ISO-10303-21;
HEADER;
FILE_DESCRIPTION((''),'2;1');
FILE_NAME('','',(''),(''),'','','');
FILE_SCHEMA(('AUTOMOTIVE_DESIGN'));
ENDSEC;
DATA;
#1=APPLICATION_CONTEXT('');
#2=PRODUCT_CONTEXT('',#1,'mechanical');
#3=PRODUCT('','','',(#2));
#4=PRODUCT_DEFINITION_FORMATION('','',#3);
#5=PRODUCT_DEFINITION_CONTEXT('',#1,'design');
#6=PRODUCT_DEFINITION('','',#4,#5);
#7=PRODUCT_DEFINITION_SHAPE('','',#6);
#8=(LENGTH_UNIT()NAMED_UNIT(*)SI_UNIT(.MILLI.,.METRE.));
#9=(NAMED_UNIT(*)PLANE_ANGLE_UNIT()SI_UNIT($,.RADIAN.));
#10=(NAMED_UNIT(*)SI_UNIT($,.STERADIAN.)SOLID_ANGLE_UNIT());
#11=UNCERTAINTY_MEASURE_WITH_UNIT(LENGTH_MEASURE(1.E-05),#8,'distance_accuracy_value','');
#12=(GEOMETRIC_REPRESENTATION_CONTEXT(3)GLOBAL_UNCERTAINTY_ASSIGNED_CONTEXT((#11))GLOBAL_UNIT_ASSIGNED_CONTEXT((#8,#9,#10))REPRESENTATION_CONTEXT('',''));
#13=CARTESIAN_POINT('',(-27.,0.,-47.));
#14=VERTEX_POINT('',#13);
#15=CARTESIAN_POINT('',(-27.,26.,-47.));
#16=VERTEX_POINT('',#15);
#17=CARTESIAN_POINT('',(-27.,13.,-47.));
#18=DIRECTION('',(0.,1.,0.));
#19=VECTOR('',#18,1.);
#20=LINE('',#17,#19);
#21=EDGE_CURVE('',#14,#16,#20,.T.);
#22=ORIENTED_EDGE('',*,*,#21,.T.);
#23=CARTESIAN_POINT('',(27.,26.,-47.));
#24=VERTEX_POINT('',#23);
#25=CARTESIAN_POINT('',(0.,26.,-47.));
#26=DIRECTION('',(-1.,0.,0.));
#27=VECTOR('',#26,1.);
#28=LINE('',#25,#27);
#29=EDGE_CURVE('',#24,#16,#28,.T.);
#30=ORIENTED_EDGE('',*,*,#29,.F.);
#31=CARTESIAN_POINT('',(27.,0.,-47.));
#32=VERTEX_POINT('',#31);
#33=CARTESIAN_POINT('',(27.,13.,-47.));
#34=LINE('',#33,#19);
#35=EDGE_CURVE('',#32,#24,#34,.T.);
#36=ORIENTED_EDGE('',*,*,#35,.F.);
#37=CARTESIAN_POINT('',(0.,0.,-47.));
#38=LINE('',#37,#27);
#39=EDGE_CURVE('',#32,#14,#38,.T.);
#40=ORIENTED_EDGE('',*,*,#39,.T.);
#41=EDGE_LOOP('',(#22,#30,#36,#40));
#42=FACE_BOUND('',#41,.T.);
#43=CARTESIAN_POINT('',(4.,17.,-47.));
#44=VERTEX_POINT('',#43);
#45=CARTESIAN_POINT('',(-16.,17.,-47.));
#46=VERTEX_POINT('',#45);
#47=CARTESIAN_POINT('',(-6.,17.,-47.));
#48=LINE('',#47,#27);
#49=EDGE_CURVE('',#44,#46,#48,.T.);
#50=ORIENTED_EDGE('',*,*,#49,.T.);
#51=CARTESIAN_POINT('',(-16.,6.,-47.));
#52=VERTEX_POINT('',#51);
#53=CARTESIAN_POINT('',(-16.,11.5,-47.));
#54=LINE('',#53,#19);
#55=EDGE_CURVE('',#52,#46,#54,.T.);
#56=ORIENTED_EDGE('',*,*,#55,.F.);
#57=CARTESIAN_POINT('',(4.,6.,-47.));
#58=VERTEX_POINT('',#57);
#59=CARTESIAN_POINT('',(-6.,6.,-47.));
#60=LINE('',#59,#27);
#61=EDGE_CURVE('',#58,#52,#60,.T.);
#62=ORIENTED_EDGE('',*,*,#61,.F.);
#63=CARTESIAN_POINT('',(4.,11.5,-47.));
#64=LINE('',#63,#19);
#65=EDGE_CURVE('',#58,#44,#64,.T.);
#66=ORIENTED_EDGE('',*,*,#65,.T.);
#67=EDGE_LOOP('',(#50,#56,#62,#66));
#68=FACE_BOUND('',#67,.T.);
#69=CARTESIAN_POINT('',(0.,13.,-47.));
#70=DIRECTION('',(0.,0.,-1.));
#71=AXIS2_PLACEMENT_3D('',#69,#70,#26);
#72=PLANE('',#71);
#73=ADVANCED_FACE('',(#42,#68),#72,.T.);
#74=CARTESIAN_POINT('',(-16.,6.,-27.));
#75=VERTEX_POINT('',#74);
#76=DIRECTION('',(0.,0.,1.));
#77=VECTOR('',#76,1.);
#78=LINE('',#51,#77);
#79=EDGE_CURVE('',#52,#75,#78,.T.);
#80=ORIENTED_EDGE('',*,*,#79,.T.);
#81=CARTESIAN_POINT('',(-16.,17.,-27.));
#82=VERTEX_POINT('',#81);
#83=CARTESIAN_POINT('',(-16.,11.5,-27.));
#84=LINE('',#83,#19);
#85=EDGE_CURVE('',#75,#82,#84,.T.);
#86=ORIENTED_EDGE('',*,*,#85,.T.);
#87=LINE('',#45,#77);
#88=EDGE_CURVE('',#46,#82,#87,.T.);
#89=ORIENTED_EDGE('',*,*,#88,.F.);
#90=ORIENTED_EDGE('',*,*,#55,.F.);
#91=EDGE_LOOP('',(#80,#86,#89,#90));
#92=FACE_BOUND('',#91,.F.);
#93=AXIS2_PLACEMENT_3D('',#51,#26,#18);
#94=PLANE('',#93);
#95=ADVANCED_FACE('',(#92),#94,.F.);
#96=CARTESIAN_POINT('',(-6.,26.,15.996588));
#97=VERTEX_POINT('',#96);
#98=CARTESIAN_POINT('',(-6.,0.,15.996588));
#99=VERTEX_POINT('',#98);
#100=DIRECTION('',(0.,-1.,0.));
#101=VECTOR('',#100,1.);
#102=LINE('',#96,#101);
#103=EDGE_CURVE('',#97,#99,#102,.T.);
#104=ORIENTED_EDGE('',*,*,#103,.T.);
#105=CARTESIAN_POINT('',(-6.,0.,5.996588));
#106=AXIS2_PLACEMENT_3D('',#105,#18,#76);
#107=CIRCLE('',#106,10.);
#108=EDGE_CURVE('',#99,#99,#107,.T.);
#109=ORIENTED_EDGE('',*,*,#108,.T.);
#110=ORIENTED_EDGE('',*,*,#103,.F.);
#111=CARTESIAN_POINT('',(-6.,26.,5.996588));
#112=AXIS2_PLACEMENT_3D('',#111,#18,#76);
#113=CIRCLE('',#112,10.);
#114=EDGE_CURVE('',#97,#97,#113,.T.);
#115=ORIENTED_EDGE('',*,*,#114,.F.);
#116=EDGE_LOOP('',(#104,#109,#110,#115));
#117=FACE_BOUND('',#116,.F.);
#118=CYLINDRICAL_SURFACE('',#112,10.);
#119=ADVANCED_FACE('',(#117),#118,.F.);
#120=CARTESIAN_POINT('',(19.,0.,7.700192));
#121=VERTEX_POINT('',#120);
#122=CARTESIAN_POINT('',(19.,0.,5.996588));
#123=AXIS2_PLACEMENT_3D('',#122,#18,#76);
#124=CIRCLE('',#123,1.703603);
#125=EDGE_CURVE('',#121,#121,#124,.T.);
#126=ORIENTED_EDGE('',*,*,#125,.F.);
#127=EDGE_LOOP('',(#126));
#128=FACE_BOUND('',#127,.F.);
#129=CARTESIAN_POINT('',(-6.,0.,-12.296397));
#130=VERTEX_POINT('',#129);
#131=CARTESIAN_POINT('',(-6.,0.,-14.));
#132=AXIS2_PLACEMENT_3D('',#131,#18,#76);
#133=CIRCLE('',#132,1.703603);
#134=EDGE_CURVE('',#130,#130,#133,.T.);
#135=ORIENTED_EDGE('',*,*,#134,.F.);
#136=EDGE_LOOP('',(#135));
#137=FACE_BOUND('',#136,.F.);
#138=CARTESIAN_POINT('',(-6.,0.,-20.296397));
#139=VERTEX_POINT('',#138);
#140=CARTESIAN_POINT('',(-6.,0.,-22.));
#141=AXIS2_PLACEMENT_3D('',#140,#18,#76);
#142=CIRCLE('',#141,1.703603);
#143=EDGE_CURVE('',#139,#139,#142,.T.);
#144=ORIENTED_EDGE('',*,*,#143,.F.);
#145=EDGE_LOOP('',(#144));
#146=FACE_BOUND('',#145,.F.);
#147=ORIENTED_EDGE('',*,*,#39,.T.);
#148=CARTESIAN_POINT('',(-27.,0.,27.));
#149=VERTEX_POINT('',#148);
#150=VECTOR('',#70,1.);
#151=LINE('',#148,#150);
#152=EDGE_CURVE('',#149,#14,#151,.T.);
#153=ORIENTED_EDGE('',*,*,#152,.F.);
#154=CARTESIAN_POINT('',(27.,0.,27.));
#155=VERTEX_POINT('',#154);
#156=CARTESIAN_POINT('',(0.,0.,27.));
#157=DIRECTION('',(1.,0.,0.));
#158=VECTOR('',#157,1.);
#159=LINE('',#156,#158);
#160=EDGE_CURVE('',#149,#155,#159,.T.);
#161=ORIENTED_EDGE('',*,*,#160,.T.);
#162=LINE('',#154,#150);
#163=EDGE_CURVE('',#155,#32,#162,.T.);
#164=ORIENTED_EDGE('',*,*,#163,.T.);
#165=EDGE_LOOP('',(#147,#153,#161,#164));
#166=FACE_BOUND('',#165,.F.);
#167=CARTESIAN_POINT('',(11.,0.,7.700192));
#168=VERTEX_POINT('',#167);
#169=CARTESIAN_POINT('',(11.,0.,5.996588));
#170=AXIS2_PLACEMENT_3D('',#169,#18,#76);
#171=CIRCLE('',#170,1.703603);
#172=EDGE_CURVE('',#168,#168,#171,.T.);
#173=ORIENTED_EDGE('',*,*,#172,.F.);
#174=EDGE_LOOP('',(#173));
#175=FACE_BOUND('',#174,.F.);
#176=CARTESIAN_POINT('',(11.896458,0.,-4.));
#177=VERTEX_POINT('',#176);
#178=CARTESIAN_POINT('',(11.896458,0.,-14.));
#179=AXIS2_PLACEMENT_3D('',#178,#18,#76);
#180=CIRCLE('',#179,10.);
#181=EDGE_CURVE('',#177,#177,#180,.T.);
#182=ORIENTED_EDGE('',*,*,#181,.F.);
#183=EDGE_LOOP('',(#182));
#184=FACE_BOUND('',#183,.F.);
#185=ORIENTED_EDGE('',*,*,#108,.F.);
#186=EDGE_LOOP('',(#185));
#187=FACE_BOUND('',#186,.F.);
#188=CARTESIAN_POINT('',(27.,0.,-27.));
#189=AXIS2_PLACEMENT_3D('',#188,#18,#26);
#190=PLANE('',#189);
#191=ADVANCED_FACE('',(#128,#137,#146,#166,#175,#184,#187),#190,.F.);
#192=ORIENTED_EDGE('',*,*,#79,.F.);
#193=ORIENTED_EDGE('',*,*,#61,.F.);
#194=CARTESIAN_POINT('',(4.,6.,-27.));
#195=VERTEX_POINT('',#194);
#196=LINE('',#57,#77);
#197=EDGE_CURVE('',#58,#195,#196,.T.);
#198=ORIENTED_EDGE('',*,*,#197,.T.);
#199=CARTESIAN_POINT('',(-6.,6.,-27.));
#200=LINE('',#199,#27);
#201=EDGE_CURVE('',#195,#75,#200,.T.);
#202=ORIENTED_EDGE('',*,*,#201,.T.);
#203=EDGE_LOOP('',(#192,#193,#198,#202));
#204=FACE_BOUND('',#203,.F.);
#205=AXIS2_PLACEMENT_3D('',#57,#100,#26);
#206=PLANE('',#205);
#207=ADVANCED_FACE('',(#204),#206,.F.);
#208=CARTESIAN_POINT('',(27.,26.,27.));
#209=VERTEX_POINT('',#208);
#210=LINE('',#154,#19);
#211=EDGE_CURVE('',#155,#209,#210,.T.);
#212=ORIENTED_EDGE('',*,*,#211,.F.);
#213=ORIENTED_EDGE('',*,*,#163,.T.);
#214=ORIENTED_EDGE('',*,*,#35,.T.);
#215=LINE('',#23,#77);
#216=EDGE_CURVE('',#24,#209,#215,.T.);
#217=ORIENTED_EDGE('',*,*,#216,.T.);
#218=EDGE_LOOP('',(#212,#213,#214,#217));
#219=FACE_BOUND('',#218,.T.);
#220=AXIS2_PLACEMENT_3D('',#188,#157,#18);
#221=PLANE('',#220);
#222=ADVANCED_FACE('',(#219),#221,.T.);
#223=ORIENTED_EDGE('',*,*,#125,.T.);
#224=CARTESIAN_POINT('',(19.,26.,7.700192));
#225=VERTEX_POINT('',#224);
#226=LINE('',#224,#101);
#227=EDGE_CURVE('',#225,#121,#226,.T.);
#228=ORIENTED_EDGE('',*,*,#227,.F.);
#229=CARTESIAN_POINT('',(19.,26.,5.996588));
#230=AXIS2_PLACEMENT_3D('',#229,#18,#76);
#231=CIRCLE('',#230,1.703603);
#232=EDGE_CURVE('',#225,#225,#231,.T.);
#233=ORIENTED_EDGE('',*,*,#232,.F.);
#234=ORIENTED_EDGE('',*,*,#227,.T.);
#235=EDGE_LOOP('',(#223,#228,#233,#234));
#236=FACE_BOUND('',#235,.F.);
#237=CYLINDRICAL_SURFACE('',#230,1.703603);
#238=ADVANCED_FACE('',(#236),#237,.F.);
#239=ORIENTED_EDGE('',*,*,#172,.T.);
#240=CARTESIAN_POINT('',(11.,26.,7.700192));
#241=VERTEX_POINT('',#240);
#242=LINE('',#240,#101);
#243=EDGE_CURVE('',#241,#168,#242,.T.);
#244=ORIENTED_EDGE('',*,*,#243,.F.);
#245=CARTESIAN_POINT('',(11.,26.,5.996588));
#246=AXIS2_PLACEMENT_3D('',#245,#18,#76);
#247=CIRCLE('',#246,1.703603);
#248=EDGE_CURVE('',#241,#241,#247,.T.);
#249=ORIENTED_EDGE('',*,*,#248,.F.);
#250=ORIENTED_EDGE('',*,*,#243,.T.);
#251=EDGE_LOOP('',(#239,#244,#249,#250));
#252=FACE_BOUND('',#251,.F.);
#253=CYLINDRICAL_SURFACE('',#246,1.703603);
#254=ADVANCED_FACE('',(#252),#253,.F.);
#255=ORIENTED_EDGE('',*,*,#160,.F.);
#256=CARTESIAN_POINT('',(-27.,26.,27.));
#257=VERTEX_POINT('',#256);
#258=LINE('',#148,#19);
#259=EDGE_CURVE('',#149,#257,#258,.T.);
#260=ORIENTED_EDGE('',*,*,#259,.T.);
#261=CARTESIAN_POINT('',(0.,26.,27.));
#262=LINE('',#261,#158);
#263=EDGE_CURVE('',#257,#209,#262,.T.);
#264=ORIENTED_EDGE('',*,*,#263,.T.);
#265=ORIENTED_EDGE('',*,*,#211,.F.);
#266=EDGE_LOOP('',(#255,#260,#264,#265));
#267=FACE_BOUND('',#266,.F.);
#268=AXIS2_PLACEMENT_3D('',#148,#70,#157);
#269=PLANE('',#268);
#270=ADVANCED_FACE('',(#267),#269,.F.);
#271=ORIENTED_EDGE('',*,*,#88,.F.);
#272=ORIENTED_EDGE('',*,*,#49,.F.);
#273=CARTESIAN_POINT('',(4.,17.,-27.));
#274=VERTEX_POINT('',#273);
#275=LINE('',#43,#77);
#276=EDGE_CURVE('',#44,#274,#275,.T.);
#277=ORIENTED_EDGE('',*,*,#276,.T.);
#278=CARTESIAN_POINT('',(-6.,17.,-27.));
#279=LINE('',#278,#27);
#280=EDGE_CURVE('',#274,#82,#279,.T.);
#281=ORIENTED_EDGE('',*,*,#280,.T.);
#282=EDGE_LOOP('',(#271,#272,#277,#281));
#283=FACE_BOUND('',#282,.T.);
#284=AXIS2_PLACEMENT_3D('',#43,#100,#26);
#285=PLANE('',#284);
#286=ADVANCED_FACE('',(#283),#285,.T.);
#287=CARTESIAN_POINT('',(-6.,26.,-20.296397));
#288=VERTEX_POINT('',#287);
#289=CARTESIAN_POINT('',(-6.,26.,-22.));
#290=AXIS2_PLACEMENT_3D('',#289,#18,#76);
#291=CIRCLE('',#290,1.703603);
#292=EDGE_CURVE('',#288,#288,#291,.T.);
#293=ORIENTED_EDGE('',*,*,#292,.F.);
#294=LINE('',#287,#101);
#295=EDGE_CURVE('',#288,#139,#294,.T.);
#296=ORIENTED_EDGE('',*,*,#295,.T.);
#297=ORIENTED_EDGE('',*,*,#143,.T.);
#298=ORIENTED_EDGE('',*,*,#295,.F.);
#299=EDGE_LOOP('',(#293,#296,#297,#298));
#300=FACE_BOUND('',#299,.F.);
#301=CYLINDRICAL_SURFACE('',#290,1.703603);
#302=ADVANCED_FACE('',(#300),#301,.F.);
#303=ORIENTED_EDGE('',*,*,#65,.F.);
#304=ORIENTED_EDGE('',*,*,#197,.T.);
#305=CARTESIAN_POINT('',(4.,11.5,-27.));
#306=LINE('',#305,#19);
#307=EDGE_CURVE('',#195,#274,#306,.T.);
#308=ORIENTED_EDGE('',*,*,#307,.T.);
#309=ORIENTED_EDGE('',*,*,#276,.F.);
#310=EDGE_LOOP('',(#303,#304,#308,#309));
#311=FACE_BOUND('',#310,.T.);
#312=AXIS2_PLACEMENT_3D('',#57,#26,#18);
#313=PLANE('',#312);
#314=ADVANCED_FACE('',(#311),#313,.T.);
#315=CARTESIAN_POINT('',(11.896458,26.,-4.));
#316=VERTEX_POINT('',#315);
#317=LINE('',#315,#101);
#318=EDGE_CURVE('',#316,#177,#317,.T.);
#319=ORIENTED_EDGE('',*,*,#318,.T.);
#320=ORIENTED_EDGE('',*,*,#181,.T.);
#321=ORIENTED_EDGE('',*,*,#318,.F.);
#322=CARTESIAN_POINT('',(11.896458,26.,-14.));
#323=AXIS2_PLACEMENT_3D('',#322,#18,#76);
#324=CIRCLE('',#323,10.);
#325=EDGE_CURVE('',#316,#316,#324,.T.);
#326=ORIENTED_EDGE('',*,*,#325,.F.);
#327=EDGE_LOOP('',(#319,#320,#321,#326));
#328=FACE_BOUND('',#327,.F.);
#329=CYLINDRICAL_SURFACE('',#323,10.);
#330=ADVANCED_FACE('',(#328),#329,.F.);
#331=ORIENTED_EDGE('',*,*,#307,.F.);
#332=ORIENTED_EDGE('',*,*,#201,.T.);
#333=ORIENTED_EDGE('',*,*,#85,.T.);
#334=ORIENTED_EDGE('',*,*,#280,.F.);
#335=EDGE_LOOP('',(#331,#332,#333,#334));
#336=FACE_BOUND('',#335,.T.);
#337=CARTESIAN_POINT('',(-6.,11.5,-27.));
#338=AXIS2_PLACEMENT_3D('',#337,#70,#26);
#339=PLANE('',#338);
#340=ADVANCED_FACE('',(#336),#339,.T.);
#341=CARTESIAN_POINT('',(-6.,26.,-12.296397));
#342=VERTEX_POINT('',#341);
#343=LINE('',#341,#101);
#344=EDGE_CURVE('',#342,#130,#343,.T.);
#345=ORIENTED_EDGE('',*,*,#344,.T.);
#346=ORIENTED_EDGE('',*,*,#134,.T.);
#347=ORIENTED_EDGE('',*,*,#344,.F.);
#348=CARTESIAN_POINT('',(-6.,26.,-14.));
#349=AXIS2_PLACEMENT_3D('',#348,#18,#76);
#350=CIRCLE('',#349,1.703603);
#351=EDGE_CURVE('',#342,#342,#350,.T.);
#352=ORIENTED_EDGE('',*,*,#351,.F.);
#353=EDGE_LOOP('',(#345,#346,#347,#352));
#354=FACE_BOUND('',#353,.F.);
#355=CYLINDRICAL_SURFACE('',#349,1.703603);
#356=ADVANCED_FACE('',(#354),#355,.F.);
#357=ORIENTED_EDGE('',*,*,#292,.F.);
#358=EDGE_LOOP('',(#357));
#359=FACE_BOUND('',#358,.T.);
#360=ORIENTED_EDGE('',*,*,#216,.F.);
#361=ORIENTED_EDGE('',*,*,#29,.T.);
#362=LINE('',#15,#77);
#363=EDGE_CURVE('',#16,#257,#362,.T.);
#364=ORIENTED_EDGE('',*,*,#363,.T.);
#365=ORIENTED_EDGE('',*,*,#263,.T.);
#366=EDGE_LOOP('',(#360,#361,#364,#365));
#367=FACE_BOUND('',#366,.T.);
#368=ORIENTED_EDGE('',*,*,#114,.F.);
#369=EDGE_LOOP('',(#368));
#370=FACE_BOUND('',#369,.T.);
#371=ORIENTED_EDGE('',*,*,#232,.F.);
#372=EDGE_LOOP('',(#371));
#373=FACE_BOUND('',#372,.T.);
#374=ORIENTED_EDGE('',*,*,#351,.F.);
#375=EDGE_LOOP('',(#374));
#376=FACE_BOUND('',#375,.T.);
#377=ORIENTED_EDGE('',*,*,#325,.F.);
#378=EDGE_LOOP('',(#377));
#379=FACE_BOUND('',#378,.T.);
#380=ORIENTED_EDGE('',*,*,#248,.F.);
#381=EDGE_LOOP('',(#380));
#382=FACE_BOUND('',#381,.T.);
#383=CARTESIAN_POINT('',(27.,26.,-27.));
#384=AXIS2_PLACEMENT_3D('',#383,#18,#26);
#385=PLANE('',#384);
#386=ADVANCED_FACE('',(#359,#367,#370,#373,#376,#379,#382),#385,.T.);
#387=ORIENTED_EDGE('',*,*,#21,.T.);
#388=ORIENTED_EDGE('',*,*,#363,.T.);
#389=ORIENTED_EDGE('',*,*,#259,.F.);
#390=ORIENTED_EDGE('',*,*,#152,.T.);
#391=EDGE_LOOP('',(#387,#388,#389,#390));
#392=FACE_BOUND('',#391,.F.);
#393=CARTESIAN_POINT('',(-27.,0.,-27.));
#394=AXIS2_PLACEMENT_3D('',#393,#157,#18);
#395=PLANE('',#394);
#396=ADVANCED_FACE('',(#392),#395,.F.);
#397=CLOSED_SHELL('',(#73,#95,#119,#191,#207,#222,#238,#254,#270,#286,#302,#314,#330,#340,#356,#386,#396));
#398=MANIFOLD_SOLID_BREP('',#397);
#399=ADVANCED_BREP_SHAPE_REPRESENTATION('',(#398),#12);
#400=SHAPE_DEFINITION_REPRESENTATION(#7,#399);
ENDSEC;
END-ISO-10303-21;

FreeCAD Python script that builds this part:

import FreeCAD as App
import Part
import Sketcher
from FreeCAD import Vector

doc = App.newDocument("Part")
body = doc.addObject("PartDesign::Body", "Body")

sketch1 = doc.addObject("Sketcher::SketchObject", "Sketch")
body.addObject(sketch1)
sketch1.AttachmentSupport = (doc.XZ_Plane, [""])
sketch1.MapMode = "FlatFace"
sketch1.addGeometry([
    Part.LineSegment(Vector(-27, -27, 0), Vector(-27, 27, 0)),
    Part.LineSegment(Vector(-27, 27, 0), Vector(27, 27, 0)),
    Part.LineSegment(Vector(27, 27, 0), Vector(27, -27, 0)),
    Part.LineSegment(Vector(27, -27, 0), Vector(-27, -27, 0)),
], False)
sketch1.addConstraint([
    Sketcher.Constraint("Coincident", 0, 2, 1, 1),
    Sketcher.Constraint("Coincident", 1, 2, 2, 1),
    Sketcher.Constraint("Coincident", 2, 2, 3, 1),
    Sketcher.Constraint("Coincident", 3, 2, 0, 1),
    Sketcher.Constraint("Vertical", 0),
    Sketcher.Constraint("Horizontal", 1),
    Sketcher.Constraint("Vertical", 2),
    Sketcher.Constraint("Horizontal", 3),
    Sketcher.Constraint("Symmetric", 0, 2, 2, 2, -1, 1),
    Sketcher.Constraint("Equal", 3, 0),
    Sketcher.Constraint("DistanceX", 1, 1, 1, 2, 54.0),
])
pad1 = doc.addObject("PartDesign::Pad", "Pad")
body.addObject(pad1)
pad1.Profile = sketch1
pad1.Length = 26
pad1.Reversed = True

sketch2 = doc.addObject("Sketcher::SketchObject", "Sketch001")
body.addObject(sketch2)
sketch2.AttachmentSupport = (doc.XZ_Plane, [""])
sketch2.MapMode = "FlatFace"
sketch2.AttachmentOffset = App.Placement(Vector(0, 0, -26), App.Rotation())
sketch2.addGeometry([
    Part.Circle(Vector(-6, -22, 0), Vector(0, 0, 1), 1.703603),
    Part.Circle(Vector(-6, -14, 0), Vector(0, 0, 1), 1.703603),
    Part.Circle(Vector(19, 5.996588, 0), Vector(0, 0, 1), 1.703603),
    Part.Circle(Vector(11, 5.996588, 0), Vector(0, 0, 1), 1.703603),
    Part.Circle(Vector(11.896458, -14, 0), Vector(0, 0, 1), 10),
    Part.Circle(Vector(-6, 5.996588, 0), Vector(0, 0, 1), 10),
], False)
sketch2.addConstraint([
    Sketcher.Constraint("Equal", 0, 1),
    Sketcher.Constraint("Equal", 1, 2),
    Sketcher.Constraint("Equal", 2, 3),
    Sketcher.Constraint("Equal", 4, 5),
    Sketcher.Constraint("Horizontal", 2, 3, 3, 3),
    Sketcher.Constraint("Horizontal", 1, 3, 4, 3),
    Sketcher.Constraint("Horizontal", 3, 3, 5, 3),
    Sketcher.Constraint("Vertical", 0, 3, 1, 3),
    Sketcher.Constraint("Vertical", 1, 3, 5, 3),
    Sketcher.Constraint("Diameter", 4, 20.0),
    Sketcher.Constraint("DistanceX", 0, 3, -1, 1, 6.0),
    Sketcher.Constraint("DistanceY", 0, 3, -1, 1, 22.0),
    Sketcher.Constraint("DistanceY", 1, 3, -1, 1, 14.0),
    Sketcher.Constraint("DistanceX", -1, 1, 2, 3, 19.0),
    Sketcher.Constraint("DistanceX", -1, 1, 3, 3, 11.0),
    Sketcher.Constraint("Diameter", 0, 3.407206),
    Sketcher.Constraint("DistanceY", -1, 1, 2, 3, 5.996588),
    Sketcher.Constraint("DistanceX", -1, 1, 4, 3, 11.896458),
])
pocket1 = doc.addObject("PartDesign::Pocket", "Pocket")
body.addObject(pocket1)
pocket1.Profile = sketch2
pocket1.Type = "ThroughAll"
pocket1.Reversed = True

sketch3 = doc.addObject("Sketcher::SketchObject", "Sketch002")
body.addObject(sketch3)
sketch3.AttachmentSupport = (doc.XY_Plane, [""])
sketch3.MapMode = "FlatFace"
sketch3.AttachmentOffset = App.Placement(Vector(0, 0, -27), App.Rotation())
sketch3.addGeometry([
    Part.LineSegment(Vector(27, 26, 0), Vector(27, 0, 0)),
    Part.LineSegment(Vector(27, 0, 0), Vector(-27, 0, 0)),
    Part.LineSegment(Vector(-27, 0, 0), Vector(-27, 26, 0)),
    Part.LineSegment(Vector(-27, 26, 0), Vector(27, 26, 0)),
], False)
sketch3.addConstraint([
    Sketcher.Constraint("Coincident", 0, 2, 1, 1),
    Sketcher.Constraint("Coincident", 1, 2, 2, 1),
    Sketcher.Constraint("Coincident", 2, 2, 3, 1),
    Sketcher.Constraint("Coincident", 3, 2, 0, 1),
    Sketcher.Constraint("Vertical", 0),
    Sketcher.Constraint("Horizontal", 1),
    Sketcher.Constraint("Vertical", 2),
    Sketcher.Constraint("Horizontal", 3),
    Sketcher.Constraint("Symmetric", 0, 2, 1, 2, -1, 1),
    Sketcher.Constraint("DistanceX", 1, 2, 1, 1, 54.0),
    Sketcher.Constraint("DistanceY", 0, 2, 0, 1, 26.0),
])
pad2 = doc.addObject("PartDesign::Pad", "Pad001")
body.addObject(pad2)
pad2.Profile = sketch3
pad2.Length = 20
pad2.Reversed = True

sketch4 = doc.addObject("Sketcher::SketchObject", "Sketch003")
body.addObject(sketch4)
sketch4.AttachmentSupport = (doc.XY_Plane, [""])
sketch4.MapMode = "FlatFace"
sketch4.AttachmentOffset = App.Placement(Vector(0, 0, -47), App.Rotation())
sketch4.addGeometry([
    Part.LineSegment(Vector(4, 17, 0), Vector(4, 6, 0)),
    Part.LineSegment(Vector(4, 6, 0), Vector(-16, 6, 0)),
    Part.LineSegment(Vector(-16, 6, 0), Vector(-16, 17, 0)),
    Part.LineSegment(Vector(-16, 17, 0), Vector(4, 17, 0)),
], False)
sketch4.addConstraint([
    Sketcher.Constraint("Coincident", 0, 2, 1, 1),
    Sketcher.Constraint("Coincident", 1, 2, 2, 1),
    Sketcher.Constraint("Coincident", 2, 2, 3, 1),
    Sketcher.Constraint("Coincident", 3, 2, 0, 1),
    Sketcher.Constraint("Vertical", 0),
    Sketcher.Constraint("Horizontal", 1),
    Sketcher.Constraint("Vertical", 2),
    Sketcher.Constraint("Horizontal", 3),
    Sketcher.Constraint("DistanceX", 1, 2, 1, 1, 20.0),
    Sketcher.Constraint("DistanceY", 0, 2, 0, 1, 11.0),
    Sketcher.Constraint("DistanceX", -1, 1, 0, 2, 4.0),
    Sketcher.Constraint("DistanceY", -1, 1, 0, 2, 6.0),
])
pocket2 = doc.addObject("PartDesign::Pocket", "Pocket001")
body.addObject(pocket2)
pocket2.Profile = sketch4
pocket2.Length = 20
pocket2.Reversed = True

doc.recompute()
